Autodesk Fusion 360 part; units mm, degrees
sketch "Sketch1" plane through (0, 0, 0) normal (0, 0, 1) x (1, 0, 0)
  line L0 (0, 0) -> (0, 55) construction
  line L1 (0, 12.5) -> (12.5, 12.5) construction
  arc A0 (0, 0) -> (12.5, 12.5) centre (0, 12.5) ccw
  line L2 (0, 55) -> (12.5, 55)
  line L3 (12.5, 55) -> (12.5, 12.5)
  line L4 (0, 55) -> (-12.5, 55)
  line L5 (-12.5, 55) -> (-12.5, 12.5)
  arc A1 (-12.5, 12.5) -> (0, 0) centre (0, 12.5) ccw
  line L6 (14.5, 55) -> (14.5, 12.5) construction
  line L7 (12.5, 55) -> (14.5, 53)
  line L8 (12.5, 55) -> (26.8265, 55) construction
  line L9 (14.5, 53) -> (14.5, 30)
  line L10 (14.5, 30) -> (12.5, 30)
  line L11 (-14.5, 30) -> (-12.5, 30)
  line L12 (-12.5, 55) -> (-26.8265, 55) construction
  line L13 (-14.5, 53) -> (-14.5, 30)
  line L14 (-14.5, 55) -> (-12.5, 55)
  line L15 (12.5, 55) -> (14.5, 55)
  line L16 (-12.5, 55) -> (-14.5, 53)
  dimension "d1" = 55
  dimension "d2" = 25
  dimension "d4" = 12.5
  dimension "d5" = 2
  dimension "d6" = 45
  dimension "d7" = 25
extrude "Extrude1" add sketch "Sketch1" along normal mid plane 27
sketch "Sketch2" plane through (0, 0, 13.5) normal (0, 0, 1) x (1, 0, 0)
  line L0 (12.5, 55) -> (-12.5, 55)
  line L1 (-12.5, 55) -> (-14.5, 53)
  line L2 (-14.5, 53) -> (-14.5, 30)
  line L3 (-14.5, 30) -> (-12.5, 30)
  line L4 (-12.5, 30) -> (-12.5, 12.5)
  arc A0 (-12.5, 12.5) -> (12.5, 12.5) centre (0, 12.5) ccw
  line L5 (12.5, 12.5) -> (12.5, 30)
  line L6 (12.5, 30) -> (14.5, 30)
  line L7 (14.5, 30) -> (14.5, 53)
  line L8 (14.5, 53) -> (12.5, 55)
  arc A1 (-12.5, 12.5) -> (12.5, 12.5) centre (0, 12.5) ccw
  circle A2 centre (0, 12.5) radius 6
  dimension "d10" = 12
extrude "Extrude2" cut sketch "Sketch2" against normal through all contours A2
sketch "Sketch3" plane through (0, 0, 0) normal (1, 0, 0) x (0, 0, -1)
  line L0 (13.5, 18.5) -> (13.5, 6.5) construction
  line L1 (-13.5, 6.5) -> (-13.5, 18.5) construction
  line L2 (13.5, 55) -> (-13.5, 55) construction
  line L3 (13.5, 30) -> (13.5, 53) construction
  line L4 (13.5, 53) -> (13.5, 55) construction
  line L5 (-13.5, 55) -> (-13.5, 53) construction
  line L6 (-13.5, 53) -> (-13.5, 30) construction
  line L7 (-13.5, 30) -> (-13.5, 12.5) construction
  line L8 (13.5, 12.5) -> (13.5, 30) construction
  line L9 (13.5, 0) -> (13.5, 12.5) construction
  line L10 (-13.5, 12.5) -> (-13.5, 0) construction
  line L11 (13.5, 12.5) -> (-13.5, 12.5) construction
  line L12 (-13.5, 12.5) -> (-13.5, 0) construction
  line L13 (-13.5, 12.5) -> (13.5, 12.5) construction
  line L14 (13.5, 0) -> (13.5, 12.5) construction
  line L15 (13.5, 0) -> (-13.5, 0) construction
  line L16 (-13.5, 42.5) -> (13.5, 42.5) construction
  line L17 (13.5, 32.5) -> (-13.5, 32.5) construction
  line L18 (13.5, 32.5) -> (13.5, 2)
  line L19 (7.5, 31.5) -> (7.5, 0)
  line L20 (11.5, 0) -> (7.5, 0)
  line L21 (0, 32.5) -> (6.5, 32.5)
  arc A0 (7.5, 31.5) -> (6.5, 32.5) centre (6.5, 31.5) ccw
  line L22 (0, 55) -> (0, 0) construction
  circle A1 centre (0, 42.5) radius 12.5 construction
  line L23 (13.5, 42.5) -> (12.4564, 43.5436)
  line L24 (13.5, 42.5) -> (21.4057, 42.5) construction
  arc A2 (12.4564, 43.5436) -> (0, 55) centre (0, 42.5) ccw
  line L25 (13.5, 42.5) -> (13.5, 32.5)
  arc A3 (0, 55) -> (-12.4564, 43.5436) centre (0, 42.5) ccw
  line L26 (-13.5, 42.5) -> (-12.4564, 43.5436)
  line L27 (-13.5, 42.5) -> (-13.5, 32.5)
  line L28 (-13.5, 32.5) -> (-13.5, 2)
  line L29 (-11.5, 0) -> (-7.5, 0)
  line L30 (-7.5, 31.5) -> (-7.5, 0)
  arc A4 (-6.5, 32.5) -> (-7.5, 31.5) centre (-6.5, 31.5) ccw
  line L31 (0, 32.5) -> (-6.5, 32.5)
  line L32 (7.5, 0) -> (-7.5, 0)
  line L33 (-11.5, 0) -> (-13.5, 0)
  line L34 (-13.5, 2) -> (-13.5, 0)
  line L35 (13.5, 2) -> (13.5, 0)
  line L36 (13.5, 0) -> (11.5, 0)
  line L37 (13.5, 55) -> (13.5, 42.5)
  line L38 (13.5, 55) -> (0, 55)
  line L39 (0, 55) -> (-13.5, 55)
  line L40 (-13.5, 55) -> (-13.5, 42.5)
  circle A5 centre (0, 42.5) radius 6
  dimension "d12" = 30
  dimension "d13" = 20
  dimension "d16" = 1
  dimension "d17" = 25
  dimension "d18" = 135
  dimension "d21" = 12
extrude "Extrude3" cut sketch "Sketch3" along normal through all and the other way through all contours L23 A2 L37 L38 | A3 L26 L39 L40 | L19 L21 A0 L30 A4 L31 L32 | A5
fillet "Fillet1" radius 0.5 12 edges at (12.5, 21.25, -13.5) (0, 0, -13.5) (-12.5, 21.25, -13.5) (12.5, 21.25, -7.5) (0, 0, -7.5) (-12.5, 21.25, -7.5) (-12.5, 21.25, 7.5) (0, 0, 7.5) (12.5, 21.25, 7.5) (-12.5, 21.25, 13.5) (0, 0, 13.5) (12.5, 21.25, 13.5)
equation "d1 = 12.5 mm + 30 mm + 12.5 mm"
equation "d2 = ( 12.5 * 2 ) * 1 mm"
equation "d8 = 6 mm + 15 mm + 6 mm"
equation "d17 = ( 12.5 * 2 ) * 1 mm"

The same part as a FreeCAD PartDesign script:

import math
import FreeCAD as App
import Part
import Sketcher
from FreeCAD import Vector
Q = App.Units.Quantity


def edges_at(feature, points):
    """Names of the edges that pass closest to the given points."""
    edges = feature.Shape.Edges
    near = lambda p: min(range(len(edges)), key=lambda i: edges[i].distToShape(Part.Vertex(*p))[0])
    return sorted({f"Edge{near(p) + 1}" for p in points})

doc = App.newDocument("Part")
body = doc.addObject("PartDesign::Body", "Body")

# Sketch on XY plane
sketch1 = body.newObject("Sketcher::SketchObject", "Sketch")
sketch1.AttachmentSupport = (doc.getObject("XY_Plane"), [""])
sketch1.MapMode = "FlatFace"
sketch1.addGeometry([
    Part.ArcOfCircle(Part.Circle(Vector(0, 12.5, 0), Vector(0, 0, 1), 12.5), math.radians(180), math.radians(360)),  # 0
    Part.LineSegment(Vector(12.5, 12.5, 0), Vector(12.5, 30, 0)),  # 1
    Part.LineSegment(Vector(12.5, 30, 0), Vector(14.5, 30, 0)),  # 2
    Part.LineSegment(Vector(14.5, 30, 0), Vector(14.5, 53, 0)),  # 3
    Part.LineSegment(Vector(14.5, 53, 0), Vector(12.5, 55, 0)),  # 4
    Part.LineSegment(Vector(12.5, 55, 0), Vector(-12.5, 55, 0)),  # 5
    Part.LineSegment(Vector(-12.5, 55, 0), Vector(-14.5, 53, 0)),  # 6
    Part.LineSegment(Vector(-14.5, 53, 0), Vector(-14.5, 30, 0)),  # 7
    Part.LineSegment(Vector(-14.5, 30, 0), Vector(-12.5, 30, 0)),  # 8
    Part.LineSegment(Vector(-12.5, 30, 0), Vector(-12.5, 12.5, 0)),  # 9
], False)
sketch1.addConstraint([
    Sketcher.Constraint("Tangent", 0, 2, 1, 1),
    Sketcher.Constraint("Coincident", 1, 2, 2, 1),
    Sketcher.Constraint("Coincident", 2, 2, 3, 1),
    Sketcher.Constraint("Coincident", 3, 2, 4, 1),
    Sketcher.Constraint("Coincident", 4, 2, 5, 1),
    Sketcher.Constraint("Coincident", 5, 2, 6, 1),
    Sketcher.Constraint("Coincident", 6, 2, 7, 1),
    Sketcher.Constraint("Coincident", 7, 2, 8, 1),
    Sketcher.Constraint("Coincident", 8, 2, 9, 1),
    Sketcher.Constraint("Tangent", 9, 2, 0, 1),
    Sketcher.Constraint("Vertical", 1),
    Sketcher.Constraint("Horizontal", 2),
    Sketcher.Constraint("Vertical", 3),
    Sketcher.Constraint("Horizontal", 5),
    Sketcher.Constraint("Vertical", 7),
    Sketcher.Constraint("Horizontal", 8),
    Sketcher.Constraint("Vertical", 9),
    Sketcher.Constraint("Symmetric", 3, 2, 6, 2, -2),
    Sketcher.Constraint("Symmetric", 1, 2, 8, 2, -2),
    Sketcher.Constraint("Perpendicular", 4, 6),
    Sketcher.Constraint("Vertical", 1, 2, 4, 2),
    Sketcher.Constraint("Vertical", 5, 2, 8, 2),
    Sketcher.Constraint("Radius", 0, Q("12.5 mm")),
    Sketcher.Constraint("DistanceX", 2, 1, 2, 2, Q("2 mm")),
    Sketcher.Constraint("DistanceY", -1, 1, 4, 2, Q("55 mm")),
    Sketcher.Constraint("DistanceY", 1, 2, 4, 2, Q("25 mm")),
    Sketcher.Constraint("DistanceY", -1, 1, 0, 3, Q("12.5 mm")),
])
pad1 = body.newObject("PartDesign::Pad", "Pad")
pad1.Profile = sketch1
pad1.Length = 27
pad1.Midplane = True

# Sketch on XY plane
sketch2 = body.newObject("Sketcher::SketchObject", "Sketch001")
sketch2.AttachmentSupport = (doc.getObject("XY_Plane"), [""])
sketch2.MapMode = "FlatFace"
sketch2.AttachmentOffset = App.Placement(Vector(0, 0, 13.5), App.Rotation())
sketch2.addGeometry(Part.Circle(Vector(0, 12.5, 0), Vector(0, 0, 1), 6), False)
sketch2.addConstraint([
    Sketcher.Constraint("PointOnObject", 0, 3, -2),
    Sketcher.Constraint("Diameter", 0, Q("12 mm")),
    Sketcher.Constraint("DistanceY", -1, 1, 0, 3, Q("12.5 mm")),
])
pocket1 = body.newObject("PartDesign::Pocket", "Pocket")
pocket1.Profile = sketch2
pocket1.Type = "ThroughAll"

# Sketch on YZ plane
sketch3 = body.newObject("Sketcher::SketchObject", "Sketch002")
sketch3.AttachmentSupport = (doc.getObject("YZ_Plane"), [""])
sketch3.MapMode = "FlatFace"
sketch3.addGeometry([
    Part.LineSegment(Vector(43.5436, -12.4564, 0), Vector(42.5, -13.5, 0)),  # 0
    Part.LineSegment(Vector(42.5, -13.5, 0), Vector(55, -13.5, 0)),  # 1
    Part.LineSegment(Vector(55, -13.5, 0), Vector(55, 0, 0)),  # 2
    Part.ArcOfCircle(Part.Circle(Vector(42.5, 0, 0), Vector(0, 0, 1), 12.5), math.radians(-85.210931), math.radians(0)),  # 3
    Part.ArcOfCircle(Part.Circle(Vector(42.5, 0, 0), Vector(0, 0, 1), 12.50004), math.radians(0), math.radians(85.210931)),  # 4
    Part.LineSegment(Vector(55, 0, 0), Vector(55, 13.5, 0)),  # 5
    Part.LineSegment(Vector(55, 13.5, 0), Vector(42.5, 13.5, 0)),  # 6
    Part.LineSegment(Vector(42.5, 13.5, 0), Vector(43.5436, 12.4564, 0)),  # 7
    Part.LineSegment(Vector(0, 7.5, 0), Vector(0, -7.5, 0)),  # 8
    Part.LineSegment(Vector(0, -7.5, 0), Vector(31.5, -7.5, 0)),  # 9
    Part.ArcOfCircle(Part.Circle(Vector(31.5, -6.5, 0), Vector(0, 0, 1), 1), math.radians(-90), math.radians(0)),  # 10
    Part.LineSegment(Vector(32.5, -6.5, 0), Vector(32.5, 6.5, 0)),  # 11
    Part.ArcOfCircle(Part.Circle(Vector(31.5, 6.5, 0), Vector(0, 0, 1), 1), math.radians(0), math.radians(90)),  # 12
    Part.LineSegment(Vector(31.5, 7.5, 0), Vector(0, 7.5, 0)),  # 13
    Part.Circle(Vector(42.5, 0, 0), Vector(0, 0, 1), 6),  # 14
], False)
sketch3.addConstraint([
    Sketcher.Constraint("Coincident", 0, 2, 1, 1),
    Sketcher.Constraint("Coincident", 1, 2, 2, 1),
    Sketcher.Constraint("Tangent", 2, 2, 3, 2),
    Sketcher.Constraint("Coincident", 3, 1, 0, 1),
    Sketcher.Constraint("Tangent", 4, 1, 5, 1),
    Sketcher.Constraint("Coincident", 5, 2, 6, 1),
    Sketcher.Constraint("Coincident", 6, 2, 7, 1),
    Sketcher.Constraint("Coincident", 7, 2, 4, 2),
    Sketcher.Constraint("Coincident", 8, 2, 9, 1),
    Sketcher.Constraint("Tangent", 9, 2, 10, 1),
    Sketcher.Constraint("Tangent", 10, 2, 11, 1),
    Sketcher.Constraint("Tangent", 11, 2, 12, 1),
    Sketcher.Constraint("Tangent", 12, 2, 13, 1),
    Sketcher.Constraint("Coincident", 13, 2, 8, 1),
    Sketcher.Constraint("Horizontal", 1),
    Sketcher.Constraint("Vertical", 2),
    Sketcher.Constraint("Vertical", 5),
    Sketcher.Constraint("Horizontal", 6),
    Sketcher.Constraint("Vertical", 8),
    Sketcher.Constraint("Horizontal", 9),
    Sketcher.Constraint("Vertical", 11),
    Sketcher.Constraint("Horizontal", 13),
    Sketcher.Constraint("Coincident", 4, 3, 3, 3),
    Sketcher.Constraint("Coincident", 14, 3, 3, 3),
    Sketcher.Constraint("Equal", 3, 4),
    Sketcher.Constraint("Equal", 10, 12),
    Sketcher.Constraint("Symmetric", 8, 2, 13, 2, -1, 1),
    Sketcher.Constraint("Symmetric", 0, 2, 6, 2, -1),
    Sketcher.Constraint("Symmetric", 3, 1, 7, 2, -1),
    Sketcher.Constraint("Perpendicular", 0, 7),
    Sketcher.Constraint("Vertical", 14, 3, 0, 2),
    Sketcher.Constraint("Diameter", 14, Q("12 mm")),
    Sketcher.Constraint("Radius", 10, Q("1 mm")),
    Sketcher.Constraint("Radius", 3, Q("12.5 mm")),
    Sketcher.Constraint("DistanceY", 0, 2, 12, 3, Q("20 mm")),
    Sketcher.Constraint("DistanceY", 8, 2, 8, 1, Q("15 mm")),
    Sketcher.Constraint("DistanceX", 9, 1, 9, 2, Q("31.5 mm")),
    Sketcher.Constraint("DistanceX", -1, 1, 1, 2, Q("55 mm")),
])
pocket2 = body.newObject("PartDesign::Pocket", "Pocket001")
pocket2.Profile = sketch3
pocket2.Type = "ThroughAll"
pocket2.Midplane = True
doc.recompute()

fillet = body.newObject("PartDesign::Fillet", "Fillet")
fillet.Base = (pocket2, edges_at(pocket2, [
    (12.5, 21.25, -13.5),
    (0, 0, -13.5),
    (-12.5, 21.25, -13.5),
    (12.5, 21.25, -7.5),
    (0, 0, -7.5),
    (-12.5, 21.25, -7.5),
    (-12.5, 21.25, 7.5),
    (0, 0, 7.5),
    (12.5, 21.25, 7.5),
    (-12.5, 21.25, 13.5),
    (0, 0, 13.5),
    (12.5, 21.25, 13.5),
]))
fillet.Radius = 0.5

doc.recompute()
